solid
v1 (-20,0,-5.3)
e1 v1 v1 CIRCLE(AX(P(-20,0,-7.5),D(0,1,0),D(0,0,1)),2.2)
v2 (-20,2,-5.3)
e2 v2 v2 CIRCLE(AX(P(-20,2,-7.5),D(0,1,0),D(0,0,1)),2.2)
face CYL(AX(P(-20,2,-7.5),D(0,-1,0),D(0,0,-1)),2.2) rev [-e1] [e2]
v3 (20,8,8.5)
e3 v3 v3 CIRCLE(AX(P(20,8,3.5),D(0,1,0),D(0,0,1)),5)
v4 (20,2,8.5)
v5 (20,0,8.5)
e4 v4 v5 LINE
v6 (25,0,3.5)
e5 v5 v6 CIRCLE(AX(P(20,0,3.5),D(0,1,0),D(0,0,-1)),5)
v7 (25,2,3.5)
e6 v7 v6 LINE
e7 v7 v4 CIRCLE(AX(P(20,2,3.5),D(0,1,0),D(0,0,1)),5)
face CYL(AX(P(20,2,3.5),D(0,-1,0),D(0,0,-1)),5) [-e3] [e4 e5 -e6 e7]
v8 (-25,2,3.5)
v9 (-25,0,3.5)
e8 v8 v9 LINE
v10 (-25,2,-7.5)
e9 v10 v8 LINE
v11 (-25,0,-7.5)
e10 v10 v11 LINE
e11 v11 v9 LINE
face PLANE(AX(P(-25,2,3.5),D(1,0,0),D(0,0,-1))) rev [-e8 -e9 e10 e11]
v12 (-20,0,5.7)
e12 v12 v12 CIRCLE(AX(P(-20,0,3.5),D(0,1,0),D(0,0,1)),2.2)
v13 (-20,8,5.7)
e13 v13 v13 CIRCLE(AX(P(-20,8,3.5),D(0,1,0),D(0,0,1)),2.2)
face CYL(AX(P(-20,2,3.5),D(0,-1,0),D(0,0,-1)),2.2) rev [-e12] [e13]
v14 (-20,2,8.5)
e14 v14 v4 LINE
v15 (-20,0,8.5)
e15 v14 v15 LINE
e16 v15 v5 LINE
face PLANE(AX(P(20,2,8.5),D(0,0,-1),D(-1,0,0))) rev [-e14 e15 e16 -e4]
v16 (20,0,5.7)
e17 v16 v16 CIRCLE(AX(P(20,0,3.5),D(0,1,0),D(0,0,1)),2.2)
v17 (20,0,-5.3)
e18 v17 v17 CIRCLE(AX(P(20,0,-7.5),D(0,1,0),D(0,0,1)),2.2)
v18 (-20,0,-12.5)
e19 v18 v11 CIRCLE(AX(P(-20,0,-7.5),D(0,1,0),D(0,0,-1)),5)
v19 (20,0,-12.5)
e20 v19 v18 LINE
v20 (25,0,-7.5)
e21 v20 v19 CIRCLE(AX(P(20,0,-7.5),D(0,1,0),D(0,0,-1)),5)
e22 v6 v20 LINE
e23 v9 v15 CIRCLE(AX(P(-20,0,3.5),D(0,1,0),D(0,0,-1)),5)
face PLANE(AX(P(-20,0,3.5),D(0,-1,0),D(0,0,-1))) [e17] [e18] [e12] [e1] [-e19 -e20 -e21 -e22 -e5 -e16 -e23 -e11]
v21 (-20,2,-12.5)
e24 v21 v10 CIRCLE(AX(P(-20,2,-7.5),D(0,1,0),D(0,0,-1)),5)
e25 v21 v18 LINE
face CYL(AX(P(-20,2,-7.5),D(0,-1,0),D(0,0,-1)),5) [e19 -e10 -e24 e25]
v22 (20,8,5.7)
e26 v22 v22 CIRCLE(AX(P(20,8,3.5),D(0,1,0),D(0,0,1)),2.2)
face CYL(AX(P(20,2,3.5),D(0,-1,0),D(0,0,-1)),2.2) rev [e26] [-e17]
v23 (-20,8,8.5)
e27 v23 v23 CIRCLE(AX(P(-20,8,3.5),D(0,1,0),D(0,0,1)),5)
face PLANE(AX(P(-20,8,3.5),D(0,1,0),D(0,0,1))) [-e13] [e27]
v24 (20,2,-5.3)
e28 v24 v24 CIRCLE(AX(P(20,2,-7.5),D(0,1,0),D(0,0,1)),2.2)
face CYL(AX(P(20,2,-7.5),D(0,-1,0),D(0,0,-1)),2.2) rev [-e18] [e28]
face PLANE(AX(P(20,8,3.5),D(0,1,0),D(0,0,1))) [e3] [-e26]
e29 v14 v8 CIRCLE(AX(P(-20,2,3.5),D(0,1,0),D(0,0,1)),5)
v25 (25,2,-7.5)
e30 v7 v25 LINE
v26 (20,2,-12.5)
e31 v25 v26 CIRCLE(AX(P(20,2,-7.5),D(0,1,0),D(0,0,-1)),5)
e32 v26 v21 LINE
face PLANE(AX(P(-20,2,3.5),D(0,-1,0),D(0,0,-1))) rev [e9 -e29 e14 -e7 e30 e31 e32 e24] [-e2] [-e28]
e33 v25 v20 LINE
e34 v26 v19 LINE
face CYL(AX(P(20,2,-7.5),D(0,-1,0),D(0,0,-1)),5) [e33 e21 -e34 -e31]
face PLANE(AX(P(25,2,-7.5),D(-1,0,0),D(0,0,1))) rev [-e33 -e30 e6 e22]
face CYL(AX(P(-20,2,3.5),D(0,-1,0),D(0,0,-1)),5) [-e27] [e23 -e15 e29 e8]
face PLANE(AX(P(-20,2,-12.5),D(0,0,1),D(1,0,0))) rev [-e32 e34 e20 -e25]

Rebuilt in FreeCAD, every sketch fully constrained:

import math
import FreeCAD as App
import Part
import Sketcher

V = App.Vector
Q = App.Units.Quantity

doc = App.newDocument("Part")
body = doc.addObject("PartDesign::Body", "Body")

# Sketch on XZ plane
sketch1 = body.newObject("Sketcher::SketchObject", "Sketch")
sketch1.AttachmentSupport = (doc.getObject("XZ_Plane"), [""])
sketch1.MapMode = "FlatFace"
sketch1.addGeometry(Part.LineSegment(V(20, -12.5, 0), V(-20, -12.5, 0)), False)
sketch1.addGeometry(Part.ArcOfCircle(Part.Circle(V(-20, -7.5, 0), V(0, 0, 1), 5), math.radians(180), math.radians(270)), False)
sketch1.addGeometry(Part.LineSegment(V(-25, -7.5, 0), V(-25, 3.5, 0)), False)
sketch1.addGeometry(Part.ArcOfCircle(Part.Circle(V(-20, 3.5, 0), V(0, 0, 1), 5), math.radians(90), math.radians(180)), False)
sketch1.addGeometry(Part.LineSegment(V(-20, 8.5, 0), V(20, 8.5, 0)), False)
sketch1.addGeometry(Part.ArcOfCircle(Part.Circle(V(20, 3.5, 0), V(0, 0, 1), 5), math.radians(0), math.radians(90)), False)
sketch1.addGeometry(Part.LineSegment(V(25, 3.5, 0), V(25, -7.5, 0)), False)
sketch1.addGeometry(Part.ArcOfCircle(Part.Circle(V(20, -7.5, 0), V(0, 0, 1), 5), math.radians(-90), math.radians(0)), False)
sketch1.addGeometry(Part.Circle(V(20, 3.5, 0), V(0, 0, 1), 2.2), False)
sketch1.addGeometry(Part.Circle(V(-20, 3.5, 0), V(0, 0, 1), 2.2), False)
sketch1.addGeometry(Part.Circle(V(20, -7.5, 0), V(0, 0, 1), 2.2), False)
sketch1.addGeometry(Part.Circle(V(-20, -7.5, 0), V(0, 0, 1), 2.2), False)
sketch1.addConstraint(Sketcher.Constraint("Tangent", 0, 2, 1, 2))
sketch1.addConstraint(Sketcher.Constraint("Tangent", 1, 1, 2, 1))
sketch1.addConstraint(Sketcher.Constraint("Tangent", 2, 2, 3, 2))
sketch1.addConstraint(Sketcher.Constraint("Tangent", 3, 1, 4, 1))
sketch1.addConstraint(Sketcher.Constraint("Tangent", 4, 2, 5, 2))
sketch1.addConstraint(Sketcher.Constraint("Tangent", 5, 1, 6, 1))
sketch1.addConstraint(Sketcher.Constraint("Tangent", 6, 2, 7, 2))
sketch1.addConstraint(Sketcher.Constraint("Tangent", 7, 1, 0, 1))
sketch1.addConstraint(Sketcher.Constraint("Horizontal", 0))
sketch1.addConstraint(Sketcher.Constraint("Vertical", 2))
sketch1.addConstraint(Sketcher.Constraint("Horizontal", 4))
sketch1.addConstraint(Sketcher.Constraint("Vertical", 6))
sketch1.addConstraint(Sketcher.Constraint("Coincident", 8, 3, 5, 3))
sketch1.addConstraint(Sketcher.Constraint("Coincident", 9, 3, 3, 3))
sketch1.addConstraint(Sketcher.Constraint("Coincident", 10, 3, 7, 3))
sketch1.addConstraint(Sketcher.Constraint("Coincident", 11, 3, 1, 3))
sketch1.addConstraint(Sketcher.Constraint("Equal", 1, 3))
sketch1.addConstraint(Sketcher.Constraint("Equal", 3, 5))
sketch1.addConstraint(Sketcher.Constraint("Equal", 5, 7))
sketch1.addConstraint(Sketcher.Constraint("Equal", 8, 9))
sketch1.addConstraint(Sketcher.Constraint("Equal", 9, 10))
sketch1.addConstraint(Sketcher.Constraint("Equal", 10, 11))
sketch1.addConstraint(Sketcher.Constraint("Radius", 1, Q("5 mm")))
sketch1.addConstraint(Sketcher.Constraint("Diameter", 8, Q("4.4 mm")))
sketch1.addConstraint(Sketcher.Constraint("DistanceX", 0, 2, 0, 1, Q("40 mm")))
sketch1.addConstraint(Sketcher.Constraint("DistanceY", 2, 1, 2, 2, Q("11 mm")))
sketch1.addConstraint(Sketcher.Constraint("DistanceX", 1, 3, -1, 1, Q("20 mm")))
sketch1.addConstraint(Sketcher.Constraint("DistanceY", 1, 3, -1, 1, Q("7.5 mm")))
pad1 = body.newObject("PartDesign::Pad", "Pad")
pad1.Profile = sketch1
pad1.Length = 2
pad1.Reversed = True

# Sketch on XZ plane
sketch2 = body.newObject("Sketcher::SketchObject", "Sketch001")
sketch2.AttachmentSupport = (doc.getObject("XZ_Plane"), [""])
sketch2.MapMode = "FlatFace"
sketch2.AttachmentOffset = App.Placement(V(0, 0, -2), App.Rotation())
sketch2.addGeometry(Part.Circle(V(-20, 3.5, 0), V(0, 0, 1), 5), False)
sketch2.addGeometry(Part.Circle(V(-20, 3.5, 0), V(0, 0, 1), 2.2), False)
sketch2.addGeometry(Part.Circle(V(20, 3.5, 0), V(0, 0, 1), 5), False)
sketch2.addGeometry(Part.Circle(V(20, 3.5, 0), V(0, 0, 1), 2.2), False)
sketch2.addConstraint(Sketcher.Constraint("Coincident", 1, 3, 0, 3))
sketch2.addConstraint(Sketcher.Constraint("Coincident", 3, 3, 2, 3))
sketch2.addConstraint(Sketcher.Constraint("Equal", 0, 2))
sketch2.addConstraint(Sketcher.Constraint("Equal", 1, 3))
sketch2.addConstraint(Sketcher.Constraint("Symmetric", 0, 3, 2, 3, -2))
sketch2.addConstraint(Sketcher.Constraint("Diameter", 0, Q("10 mm")))
sketch2.addConstraint(Sketcher.Constraint("Diameter", 1, Q("4.4 mm")))
sketch2.addConstraint(Sketcher.Constraint("DistanceX", 0, 3, -1, 1, Q("20 mm")))
sketch2.addConstraint(Sketcher.Constraint("DistanceY", -1, 1, 0, 3, Q("3.5 mm")))
pad2 = body.newObject("PartDesign::Pad", "Pad001")
pad2.Profile = sketch2
pad2.Length = 6
pad2.Reversed = True

doc.recompute()
